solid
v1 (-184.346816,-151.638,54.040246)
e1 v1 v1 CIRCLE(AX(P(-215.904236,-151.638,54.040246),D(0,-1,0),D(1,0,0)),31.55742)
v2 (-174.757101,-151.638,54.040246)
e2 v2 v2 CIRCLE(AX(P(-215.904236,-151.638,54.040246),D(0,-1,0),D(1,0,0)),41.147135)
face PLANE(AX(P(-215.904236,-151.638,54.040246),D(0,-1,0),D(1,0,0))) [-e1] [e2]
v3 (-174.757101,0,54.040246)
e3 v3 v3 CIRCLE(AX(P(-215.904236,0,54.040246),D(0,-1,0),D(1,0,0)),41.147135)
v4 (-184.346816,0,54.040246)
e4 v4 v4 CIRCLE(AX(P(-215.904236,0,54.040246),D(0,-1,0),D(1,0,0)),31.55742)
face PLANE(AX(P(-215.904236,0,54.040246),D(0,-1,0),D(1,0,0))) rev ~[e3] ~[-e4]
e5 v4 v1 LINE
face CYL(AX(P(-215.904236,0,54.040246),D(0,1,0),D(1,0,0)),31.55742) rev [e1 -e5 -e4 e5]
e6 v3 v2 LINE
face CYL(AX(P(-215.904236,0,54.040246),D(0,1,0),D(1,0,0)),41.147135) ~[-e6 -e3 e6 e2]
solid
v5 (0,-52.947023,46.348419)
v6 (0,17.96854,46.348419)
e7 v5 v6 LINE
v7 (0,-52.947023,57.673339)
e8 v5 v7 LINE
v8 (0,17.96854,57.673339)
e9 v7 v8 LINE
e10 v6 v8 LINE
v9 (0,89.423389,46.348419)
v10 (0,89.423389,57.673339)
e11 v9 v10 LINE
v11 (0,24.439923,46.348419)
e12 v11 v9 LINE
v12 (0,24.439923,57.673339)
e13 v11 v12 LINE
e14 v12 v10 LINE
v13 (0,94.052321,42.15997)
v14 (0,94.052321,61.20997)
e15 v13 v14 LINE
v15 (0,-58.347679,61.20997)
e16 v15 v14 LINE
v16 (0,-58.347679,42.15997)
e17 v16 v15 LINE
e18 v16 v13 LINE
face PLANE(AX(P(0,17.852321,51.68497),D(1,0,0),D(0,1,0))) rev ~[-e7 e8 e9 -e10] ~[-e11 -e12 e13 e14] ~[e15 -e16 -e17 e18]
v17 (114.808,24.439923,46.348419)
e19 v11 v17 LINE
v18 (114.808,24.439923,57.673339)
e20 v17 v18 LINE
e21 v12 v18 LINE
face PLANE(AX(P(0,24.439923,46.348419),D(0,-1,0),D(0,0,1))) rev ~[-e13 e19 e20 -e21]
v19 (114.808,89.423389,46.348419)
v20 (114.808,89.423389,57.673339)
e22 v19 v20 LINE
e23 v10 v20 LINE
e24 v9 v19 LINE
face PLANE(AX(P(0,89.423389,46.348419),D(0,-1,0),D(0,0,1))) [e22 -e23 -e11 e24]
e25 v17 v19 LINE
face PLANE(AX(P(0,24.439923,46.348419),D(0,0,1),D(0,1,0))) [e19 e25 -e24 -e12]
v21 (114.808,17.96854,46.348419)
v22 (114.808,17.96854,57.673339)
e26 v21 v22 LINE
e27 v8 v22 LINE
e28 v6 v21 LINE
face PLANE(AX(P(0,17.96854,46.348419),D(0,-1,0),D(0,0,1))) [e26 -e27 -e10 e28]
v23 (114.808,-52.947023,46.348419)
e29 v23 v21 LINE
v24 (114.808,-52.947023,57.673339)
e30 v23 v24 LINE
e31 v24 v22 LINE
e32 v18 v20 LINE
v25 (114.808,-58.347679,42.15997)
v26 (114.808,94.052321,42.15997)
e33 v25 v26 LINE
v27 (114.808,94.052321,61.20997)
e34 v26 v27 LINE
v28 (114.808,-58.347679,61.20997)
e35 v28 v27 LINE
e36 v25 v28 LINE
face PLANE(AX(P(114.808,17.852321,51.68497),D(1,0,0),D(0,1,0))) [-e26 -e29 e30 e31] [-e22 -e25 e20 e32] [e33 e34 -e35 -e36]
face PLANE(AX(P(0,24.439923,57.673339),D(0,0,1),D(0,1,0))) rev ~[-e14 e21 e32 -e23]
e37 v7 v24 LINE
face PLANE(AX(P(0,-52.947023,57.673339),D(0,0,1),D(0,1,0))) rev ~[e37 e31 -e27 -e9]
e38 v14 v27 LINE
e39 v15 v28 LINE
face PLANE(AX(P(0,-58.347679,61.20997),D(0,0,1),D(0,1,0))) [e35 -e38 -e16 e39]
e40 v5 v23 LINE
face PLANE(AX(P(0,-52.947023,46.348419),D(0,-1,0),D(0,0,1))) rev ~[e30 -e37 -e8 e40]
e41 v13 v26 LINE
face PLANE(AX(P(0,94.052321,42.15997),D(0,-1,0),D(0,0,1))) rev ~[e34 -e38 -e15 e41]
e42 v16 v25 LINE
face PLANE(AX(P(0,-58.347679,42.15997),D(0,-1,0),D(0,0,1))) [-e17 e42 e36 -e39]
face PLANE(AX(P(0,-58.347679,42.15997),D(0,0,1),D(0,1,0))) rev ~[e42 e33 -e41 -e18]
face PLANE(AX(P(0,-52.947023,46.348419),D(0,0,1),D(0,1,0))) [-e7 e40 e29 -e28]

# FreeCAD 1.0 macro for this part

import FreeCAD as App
import Part
import Sketcher
from FreeCAD import Vector
Q = App.Units.Quantity


def add_polygon(sketch, points):
    """Adds a closed chain of lines whose ends are joined by coincident constraints."""
    first, n = sketch.GeometryCount, len(points)
    for a, b in zip(points, points[1:] + points[:1]):
        sketch.addGeometry(Part.LineSegment(App.Vector(*a, 0), App.Vector(*b, 0)), False)
    for i in range(n):
        sketch.addConstraint(Sketcher.Constraint("Coincident", first + i, 2, first + (i + 1) % n, 1))

doc = App.newDocument("Part")
body = doc.addObject("PartDesign::Body", "Body")

# Sketch on XZ plane
sketch1 = doc.addObject("Sketcher::SketchObject", "Sketch")
body.addObject(sketch1)
sketch1.AttachmentSupport = (doc.XZ_Plane, [""])
sketch1.MapMode = "FlatFace"
sketch1.addGeometry([
    Part.Circle(Vector(-215.904236, 54.040246, 0), Vector(0, 0, 1), 41.147135),
    Part.Circle(Vector(-215.904236, 54.040246, 0), Vector(0, 0, 1), 31.55742),
], False)
sketch1.addConstraint([
    Sketcher.Constraint("Coincident", 1, 3, 0, 3),
    Sketcher.Constraint("Diameter", 0, 82.29427),
    Sketcher.Constraint("Diameter", 1, 63.11484),
    Sketcher.Constraint("DistanceX", 0, 3, -1, 1, 215.904236),
    Sketcher.Constraint("DistanceY", -1, 1, 0, 3, 54.040246),
])
pad1 = doc.addObject("PartDesign::Pad", "Pad")
body.addObject(pad1)
pad1.Profile = sketch1
pad1.Length = Q("5.97 in")
body2 = doc.addObject("PartDesign::Body", "Body001")

# Sketch on YZ plane
sketch2 = doc.addObject("Sketcher::SketchObject", "Sketch001")
body2.addObject(sketch2)
sketch2.AttachmentSupport = (doc.getObject("YZ_Plane001"), [""])
sketch2.MapMode = "FlatFace"
add_polygon(sketch2, [(-58.347679, 61.20997), (-58.347679, 42.15997), (94.052321, 42.15997), (94.052321, 61.20997)])  # lines 0-3
add_polygon(sketch2, [(17.96854, 46.348419), (-52.947023, 46.348419), (-52.947023, 57.673339), (17.96854, 57.673339)])  # lines 4-7
add_polygon(sketch2, [(89.423389, 46.348419), (24.439923, 46.348419), (24.439923, 57.673339), (89.423389, 57.673339)])  # lines 8-11
sketch2.addConstraint([
    Sketcher.Constraint("Vertical", 0),
    Sketcher.Constraint("Horizontal", 1),
    Sketcher.Constraint("Vertical", 2),
    Sketcher.Constraint("Horizontal", 3),
    Sketcher.Constraint("Horizontal", 4),
    Sketcher.Constraint("Vertical", 5),
    Sketcher.Constraint("Horizontal", 6),
    Sketcher.Constraint("Vertical", 7),
    Sketcher.Constraint("Horizontal", 8),
    Sketcher.Constraint("Vertical", 9),
    Sketcher.Constraint("Horizontal", 10),
    Sketcher.Constraint("Vertical", 11),
    Sketcher.Constraint("Horizontal", 7, 2, 8, 2),
    Sketcher.Constraint("Horizontal", 6, 2, 9, 2),
    Sketcher.Constraint("DistanceX", 1, 1, 1, 2, Q("6 in")),
    Sketcher.Constraint("DistanceY", 0, 2, 0, 1, Q("0.75 in")),
    Sketcher.Constraint("DistanceY", 5, 1, 5, 2, 11.32492),
    Sketcher.Constraint("DistanceX", 4, 2, 4, 1, 70.915563),
    Sketcher.Constraint("DistanceX", 8, 2, 8, 1, 64.983465),
    Sketcher.Constraint("DistanceX", 0, 2, -1, 1, 58.347679),
    Sketcher.Constraint("DistanceY", -1, 1, 0, 2, 42.15997),
    Sketcher.Constraint("DistanceY", -1, 1, 4, 2, 46.348419),
    Sketcher.Constraint("DistanceX", -1, 1, 6, 2, 17.96854),
    Sketcher.Constraint("DistanceX", -1, 1, 10, 2, 89.423389),
])
pad2 = doc.addObject("PartDesign::Pad", "Pad001")
body2.addObject(pad2)
pad2.Profile = sketch2
pad2.Length = Q("4.52 in")

doc.recompute()
